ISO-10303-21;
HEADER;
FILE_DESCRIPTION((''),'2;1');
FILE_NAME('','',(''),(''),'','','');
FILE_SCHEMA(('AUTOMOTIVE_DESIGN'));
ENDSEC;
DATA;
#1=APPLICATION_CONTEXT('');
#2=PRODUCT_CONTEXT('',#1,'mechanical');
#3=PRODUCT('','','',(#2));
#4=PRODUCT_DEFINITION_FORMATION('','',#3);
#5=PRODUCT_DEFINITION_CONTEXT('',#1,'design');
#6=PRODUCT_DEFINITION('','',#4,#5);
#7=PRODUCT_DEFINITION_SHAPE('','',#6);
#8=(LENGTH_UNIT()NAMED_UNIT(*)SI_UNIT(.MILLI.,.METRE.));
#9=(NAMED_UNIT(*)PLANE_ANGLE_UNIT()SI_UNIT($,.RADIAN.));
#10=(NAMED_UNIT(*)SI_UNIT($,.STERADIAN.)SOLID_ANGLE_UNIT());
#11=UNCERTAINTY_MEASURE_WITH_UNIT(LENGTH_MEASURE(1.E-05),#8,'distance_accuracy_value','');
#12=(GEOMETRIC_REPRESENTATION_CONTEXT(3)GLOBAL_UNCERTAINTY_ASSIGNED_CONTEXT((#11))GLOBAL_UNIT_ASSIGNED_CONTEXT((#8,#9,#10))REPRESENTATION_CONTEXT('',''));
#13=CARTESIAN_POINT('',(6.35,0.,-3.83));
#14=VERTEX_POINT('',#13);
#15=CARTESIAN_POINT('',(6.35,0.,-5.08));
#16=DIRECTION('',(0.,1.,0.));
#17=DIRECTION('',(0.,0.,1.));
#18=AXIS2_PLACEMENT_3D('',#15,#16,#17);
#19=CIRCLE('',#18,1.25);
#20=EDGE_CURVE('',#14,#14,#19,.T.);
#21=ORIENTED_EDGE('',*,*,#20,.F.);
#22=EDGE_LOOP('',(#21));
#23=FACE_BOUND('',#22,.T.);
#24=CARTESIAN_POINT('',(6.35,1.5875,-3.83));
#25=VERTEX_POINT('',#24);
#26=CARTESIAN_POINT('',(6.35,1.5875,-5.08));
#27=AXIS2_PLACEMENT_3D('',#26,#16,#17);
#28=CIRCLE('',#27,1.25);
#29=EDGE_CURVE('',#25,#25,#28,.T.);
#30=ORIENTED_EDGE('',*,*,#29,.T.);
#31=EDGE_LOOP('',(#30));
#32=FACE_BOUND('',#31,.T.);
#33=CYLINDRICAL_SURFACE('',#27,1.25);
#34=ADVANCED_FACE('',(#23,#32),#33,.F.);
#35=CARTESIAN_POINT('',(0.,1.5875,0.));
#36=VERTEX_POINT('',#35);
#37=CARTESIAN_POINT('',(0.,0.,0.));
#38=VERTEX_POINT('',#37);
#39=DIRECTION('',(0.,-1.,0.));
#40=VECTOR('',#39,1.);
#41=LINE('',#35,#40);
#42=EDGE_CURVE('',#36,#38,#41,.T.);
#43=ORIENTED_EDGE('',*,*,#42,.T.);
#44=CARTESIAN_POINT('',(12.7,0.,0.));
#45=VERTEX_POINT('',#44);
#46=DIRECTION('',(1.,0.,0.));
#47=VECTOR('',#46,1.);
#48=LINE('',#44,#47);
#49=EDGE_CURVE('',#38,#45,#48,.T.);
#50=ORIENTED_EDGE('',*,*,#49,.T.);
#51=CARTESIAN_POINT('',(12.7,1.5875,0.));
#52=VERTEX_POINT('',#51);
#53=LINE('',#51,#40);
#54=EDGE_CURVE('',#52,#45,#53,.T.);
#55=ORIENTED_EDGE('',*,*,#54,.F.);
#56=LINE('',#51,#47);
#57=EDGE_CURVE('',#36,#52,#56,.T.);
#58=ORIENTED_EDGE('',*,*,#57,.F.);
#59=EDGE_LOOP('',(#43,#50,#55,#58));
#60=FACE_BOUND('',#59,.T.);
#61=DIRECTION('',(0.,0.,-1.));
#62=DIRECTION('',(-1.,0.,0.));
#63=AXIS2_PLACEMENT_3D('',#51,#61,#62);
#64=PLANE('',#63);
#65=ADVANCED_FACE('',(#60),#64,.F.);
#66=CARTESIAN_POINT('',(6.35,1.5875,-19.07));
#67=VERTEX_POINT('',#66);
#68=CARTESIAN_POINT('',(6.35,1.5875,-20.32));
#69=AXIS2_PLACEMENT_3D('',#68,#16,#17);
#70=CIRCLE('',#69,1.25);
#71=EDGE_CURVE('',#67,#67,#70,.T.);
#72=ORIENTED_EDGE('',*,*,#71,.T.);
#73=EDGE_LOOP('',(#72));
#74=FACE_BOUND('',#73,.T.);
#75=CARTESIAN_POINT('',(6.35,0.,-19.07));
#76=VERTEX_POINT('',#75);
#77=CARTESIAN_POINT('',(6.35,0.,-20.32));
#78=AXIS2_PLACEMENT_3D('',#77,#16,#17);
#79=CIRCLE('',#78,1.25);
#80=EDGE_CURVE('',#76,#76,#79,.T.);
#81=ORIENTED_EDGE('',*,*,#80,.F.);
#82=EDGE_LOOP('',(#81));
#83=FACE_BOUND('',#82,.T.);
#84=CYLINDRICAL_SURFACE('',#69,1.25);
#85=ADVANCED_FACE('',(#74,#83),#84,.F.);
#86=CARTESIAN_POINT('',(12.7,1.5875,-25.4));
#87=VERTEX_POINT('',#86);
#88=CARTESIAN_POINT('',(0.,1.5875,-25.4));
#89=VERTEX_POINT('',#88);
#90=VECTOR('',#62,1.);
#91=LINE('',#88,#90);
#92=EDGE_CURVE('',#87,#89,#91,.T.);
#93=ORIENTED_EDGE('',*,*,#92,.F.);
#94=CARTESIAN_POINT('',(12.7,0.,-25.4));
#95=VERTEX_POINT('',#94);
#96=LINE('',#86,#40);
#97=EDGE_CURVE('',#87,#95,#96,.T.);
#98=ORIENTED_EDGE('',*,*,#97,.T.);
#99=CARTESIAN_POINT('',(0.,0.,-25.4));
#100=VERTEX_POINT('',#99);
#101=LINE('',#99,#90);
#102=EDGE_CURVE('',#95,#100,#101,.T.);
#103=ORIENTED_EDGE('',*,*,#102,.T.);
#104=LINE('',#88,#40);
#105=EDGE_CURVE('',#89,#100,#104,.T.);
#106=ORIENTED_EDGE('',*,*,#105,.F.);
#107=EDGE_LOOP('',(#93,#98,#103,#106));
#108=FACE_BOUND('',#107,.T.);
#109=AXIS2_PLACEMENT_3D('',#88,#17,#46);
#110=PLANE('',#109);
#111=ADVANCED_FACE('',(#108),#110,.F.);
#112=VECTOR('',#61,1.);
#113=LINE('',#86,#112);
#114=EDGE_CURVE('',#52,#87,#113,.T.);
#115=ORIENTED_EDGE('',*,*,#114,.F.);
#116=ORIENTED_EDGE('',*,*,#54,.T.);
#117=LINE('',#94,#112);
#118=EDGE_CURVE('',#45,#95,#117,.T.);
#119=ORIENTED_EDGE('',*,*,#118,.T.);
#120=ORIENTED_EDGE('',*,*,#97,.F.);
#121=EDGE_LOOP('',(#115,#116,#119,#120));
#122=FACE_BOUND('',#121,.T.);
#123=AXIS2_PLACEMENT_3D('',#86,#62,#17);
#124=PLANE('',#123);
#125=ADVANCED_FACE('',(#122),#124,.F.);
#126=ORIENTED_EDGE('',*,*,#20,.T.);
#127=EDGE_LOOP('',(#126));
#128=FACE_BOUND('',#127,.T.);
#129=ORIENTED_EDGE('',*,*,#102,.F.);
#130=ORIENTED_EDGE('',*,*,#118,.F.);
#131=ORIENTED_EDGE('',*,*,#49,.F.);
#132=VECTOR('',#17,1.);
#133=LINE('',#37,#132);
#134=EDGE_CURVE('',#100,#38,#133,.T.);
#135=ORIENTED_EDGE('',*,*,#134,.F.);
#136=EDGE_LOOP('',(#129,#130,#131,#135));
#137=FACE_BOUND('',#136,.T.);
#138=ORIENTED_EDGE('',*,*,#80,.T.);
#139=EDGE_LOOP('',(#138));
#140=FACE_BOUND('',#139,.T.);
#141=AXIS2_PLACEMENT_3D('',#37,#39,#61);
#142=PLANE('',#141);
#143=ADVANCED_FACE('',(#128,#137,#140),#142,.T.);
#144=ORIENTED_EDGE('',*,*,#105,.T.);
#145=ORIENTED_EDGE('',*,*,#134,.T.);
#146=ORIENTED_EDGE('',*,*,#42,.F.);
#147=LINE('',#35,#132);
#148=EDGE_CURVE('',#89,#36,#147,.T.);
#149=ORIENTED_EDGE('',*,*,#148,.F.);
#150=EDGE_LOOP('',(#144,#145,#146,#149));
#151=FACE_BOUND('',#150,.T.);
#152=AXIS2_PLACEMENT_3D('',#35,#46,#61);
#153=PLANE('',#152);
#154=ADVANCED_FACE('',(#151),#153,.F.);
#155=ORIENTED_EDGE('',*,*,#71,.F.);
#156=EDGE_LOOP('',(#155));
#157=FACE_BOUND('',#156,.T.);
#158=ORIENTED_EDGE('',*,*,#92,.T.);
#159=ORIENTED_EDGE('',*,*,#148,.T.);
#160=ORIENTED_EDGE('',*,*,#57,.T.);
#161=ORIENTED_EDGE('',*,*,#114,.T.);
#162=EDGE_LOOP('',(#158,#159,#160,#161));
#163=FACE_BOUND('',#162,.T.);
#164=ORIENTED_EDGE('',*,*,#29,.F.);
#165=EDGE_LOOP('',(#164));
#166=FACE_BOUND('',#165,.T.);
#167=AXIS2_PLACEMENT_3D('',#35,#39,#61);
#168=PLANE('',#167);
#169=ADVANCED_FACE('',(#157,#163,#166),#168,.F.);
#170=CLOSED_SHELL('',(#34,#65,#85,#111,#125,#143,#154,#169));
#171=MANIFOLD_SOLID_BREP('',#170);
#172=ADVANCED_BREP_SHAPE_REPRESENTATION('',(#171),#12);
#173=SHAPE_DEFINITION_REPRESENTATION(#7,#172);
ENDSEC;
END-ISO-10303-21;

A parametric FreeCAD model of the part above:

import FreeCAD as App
import Part
import Sketcher
Q = App.Units.Quantity


def add_polygon(sketch, points):
    """Adds a closed chain of lines whose ends are joined by coincident constraints."""
    first, n = sketch.GeometryCount, len(points)
    for a, b in zip(points, points[1:] + points[:1]):
        sketch.addGeometry(Part.LineSegment(App.Vector(*a, 0), App.Vector(*b, 0)), False)
    for i in range(n):
        sketch.addConstraint(Sketcher.Constraint("Coincident", first + i, 2, first + (i + 1) % n, 1))

doc = App.newDocument("Part")
body = doc.addObject("PartDesign::Body", "Body")

# Sketch on XZ plane
sketch1 = body.newObject("Sketcher::SketchObject", "Sketch")
sketch1.AttachmentSupport = (doc.getObject("XZ_Plane"), [""])
sketch1.MapMode = "FlatFace"
add_polygon(sketch1, [(0, -25.4), (0, 0), (12.7, 0), (12.7, -25.4)])  # lines 0-3
sketch1.addConstraint([
    Sketcher.Constraint("Vertical", 0),
    Sketcher.Constraint("Horizontal", 1),
    Sketcher.Constraint("Vertical", 2),
    Sketcher.Constraint("Horizontal", 3),
    Sketcher.Constraint("Coincident", 0, 2, -1, 1),
    Sketcher.Constraint("DistanceY", 0, 1, 0, 2, Q("1 in")),
    Sketcher.Constraint("DistanceX", 1, 1, 1, 2, Q("0.5 in")),
])
pad1 = body.newObject("PartDesign::Pad", "Pad")
pad1.Profile = sketch1
pad1.Length = Q("0.0625 in")
pad1.Reversed = True

# Sketch on XZ plane
sketch2 = body.newObject("Sketcher::SketchObject", "Sketch001")
sketch2.AttachmentSupport = (doc.getObject("XZ_Plane"), [""])
sketch2.MapMode = "FlatFace"
sketch2.AttachmentOffset = App.Placement(App.Vector(0, 0, -0.0625 * 25.4), App.Rotation())
sketch2.addGeometry([
    Part.Circle(App.Vector(6.35, -20.32, 0), App.Vector(0, 0, 1), 1.25),
    Part.Circle(App.Vector(6.35, -5.08, 0), App.Vector(0, 0, 1), 1.25),
], False)
sketch2.addConstraint([
    Sketcher.Constraint("Equal", 0, 1),
    Sketcher.Constraint("Vertical", 0, 3, 1, 3),
    Sketcher.Constraint("DistanceY", 0, 3, -1, 1, Q("0.8 in")),
    Sketcher.Constraint("DistanceY", 1, 3, -1, 1, Q("0.2 in")),
    Sketcher.Constraint("Diameter", 0, Q("2.5 mm")),
    Sketcher.Constraint("DistanceX", -1, 1, 0, 3, Q("0.25 in")),
])
doc.recompute()
hole = body.newObject("PartDesign::Hole", "Hole")
hole.Profile = sketch2
hole.ThreadType = "None"
hole.Diameter = 2.5
hole.DepthType = "ThroughAll"
hole.Reversed = True

doc.recompute()
